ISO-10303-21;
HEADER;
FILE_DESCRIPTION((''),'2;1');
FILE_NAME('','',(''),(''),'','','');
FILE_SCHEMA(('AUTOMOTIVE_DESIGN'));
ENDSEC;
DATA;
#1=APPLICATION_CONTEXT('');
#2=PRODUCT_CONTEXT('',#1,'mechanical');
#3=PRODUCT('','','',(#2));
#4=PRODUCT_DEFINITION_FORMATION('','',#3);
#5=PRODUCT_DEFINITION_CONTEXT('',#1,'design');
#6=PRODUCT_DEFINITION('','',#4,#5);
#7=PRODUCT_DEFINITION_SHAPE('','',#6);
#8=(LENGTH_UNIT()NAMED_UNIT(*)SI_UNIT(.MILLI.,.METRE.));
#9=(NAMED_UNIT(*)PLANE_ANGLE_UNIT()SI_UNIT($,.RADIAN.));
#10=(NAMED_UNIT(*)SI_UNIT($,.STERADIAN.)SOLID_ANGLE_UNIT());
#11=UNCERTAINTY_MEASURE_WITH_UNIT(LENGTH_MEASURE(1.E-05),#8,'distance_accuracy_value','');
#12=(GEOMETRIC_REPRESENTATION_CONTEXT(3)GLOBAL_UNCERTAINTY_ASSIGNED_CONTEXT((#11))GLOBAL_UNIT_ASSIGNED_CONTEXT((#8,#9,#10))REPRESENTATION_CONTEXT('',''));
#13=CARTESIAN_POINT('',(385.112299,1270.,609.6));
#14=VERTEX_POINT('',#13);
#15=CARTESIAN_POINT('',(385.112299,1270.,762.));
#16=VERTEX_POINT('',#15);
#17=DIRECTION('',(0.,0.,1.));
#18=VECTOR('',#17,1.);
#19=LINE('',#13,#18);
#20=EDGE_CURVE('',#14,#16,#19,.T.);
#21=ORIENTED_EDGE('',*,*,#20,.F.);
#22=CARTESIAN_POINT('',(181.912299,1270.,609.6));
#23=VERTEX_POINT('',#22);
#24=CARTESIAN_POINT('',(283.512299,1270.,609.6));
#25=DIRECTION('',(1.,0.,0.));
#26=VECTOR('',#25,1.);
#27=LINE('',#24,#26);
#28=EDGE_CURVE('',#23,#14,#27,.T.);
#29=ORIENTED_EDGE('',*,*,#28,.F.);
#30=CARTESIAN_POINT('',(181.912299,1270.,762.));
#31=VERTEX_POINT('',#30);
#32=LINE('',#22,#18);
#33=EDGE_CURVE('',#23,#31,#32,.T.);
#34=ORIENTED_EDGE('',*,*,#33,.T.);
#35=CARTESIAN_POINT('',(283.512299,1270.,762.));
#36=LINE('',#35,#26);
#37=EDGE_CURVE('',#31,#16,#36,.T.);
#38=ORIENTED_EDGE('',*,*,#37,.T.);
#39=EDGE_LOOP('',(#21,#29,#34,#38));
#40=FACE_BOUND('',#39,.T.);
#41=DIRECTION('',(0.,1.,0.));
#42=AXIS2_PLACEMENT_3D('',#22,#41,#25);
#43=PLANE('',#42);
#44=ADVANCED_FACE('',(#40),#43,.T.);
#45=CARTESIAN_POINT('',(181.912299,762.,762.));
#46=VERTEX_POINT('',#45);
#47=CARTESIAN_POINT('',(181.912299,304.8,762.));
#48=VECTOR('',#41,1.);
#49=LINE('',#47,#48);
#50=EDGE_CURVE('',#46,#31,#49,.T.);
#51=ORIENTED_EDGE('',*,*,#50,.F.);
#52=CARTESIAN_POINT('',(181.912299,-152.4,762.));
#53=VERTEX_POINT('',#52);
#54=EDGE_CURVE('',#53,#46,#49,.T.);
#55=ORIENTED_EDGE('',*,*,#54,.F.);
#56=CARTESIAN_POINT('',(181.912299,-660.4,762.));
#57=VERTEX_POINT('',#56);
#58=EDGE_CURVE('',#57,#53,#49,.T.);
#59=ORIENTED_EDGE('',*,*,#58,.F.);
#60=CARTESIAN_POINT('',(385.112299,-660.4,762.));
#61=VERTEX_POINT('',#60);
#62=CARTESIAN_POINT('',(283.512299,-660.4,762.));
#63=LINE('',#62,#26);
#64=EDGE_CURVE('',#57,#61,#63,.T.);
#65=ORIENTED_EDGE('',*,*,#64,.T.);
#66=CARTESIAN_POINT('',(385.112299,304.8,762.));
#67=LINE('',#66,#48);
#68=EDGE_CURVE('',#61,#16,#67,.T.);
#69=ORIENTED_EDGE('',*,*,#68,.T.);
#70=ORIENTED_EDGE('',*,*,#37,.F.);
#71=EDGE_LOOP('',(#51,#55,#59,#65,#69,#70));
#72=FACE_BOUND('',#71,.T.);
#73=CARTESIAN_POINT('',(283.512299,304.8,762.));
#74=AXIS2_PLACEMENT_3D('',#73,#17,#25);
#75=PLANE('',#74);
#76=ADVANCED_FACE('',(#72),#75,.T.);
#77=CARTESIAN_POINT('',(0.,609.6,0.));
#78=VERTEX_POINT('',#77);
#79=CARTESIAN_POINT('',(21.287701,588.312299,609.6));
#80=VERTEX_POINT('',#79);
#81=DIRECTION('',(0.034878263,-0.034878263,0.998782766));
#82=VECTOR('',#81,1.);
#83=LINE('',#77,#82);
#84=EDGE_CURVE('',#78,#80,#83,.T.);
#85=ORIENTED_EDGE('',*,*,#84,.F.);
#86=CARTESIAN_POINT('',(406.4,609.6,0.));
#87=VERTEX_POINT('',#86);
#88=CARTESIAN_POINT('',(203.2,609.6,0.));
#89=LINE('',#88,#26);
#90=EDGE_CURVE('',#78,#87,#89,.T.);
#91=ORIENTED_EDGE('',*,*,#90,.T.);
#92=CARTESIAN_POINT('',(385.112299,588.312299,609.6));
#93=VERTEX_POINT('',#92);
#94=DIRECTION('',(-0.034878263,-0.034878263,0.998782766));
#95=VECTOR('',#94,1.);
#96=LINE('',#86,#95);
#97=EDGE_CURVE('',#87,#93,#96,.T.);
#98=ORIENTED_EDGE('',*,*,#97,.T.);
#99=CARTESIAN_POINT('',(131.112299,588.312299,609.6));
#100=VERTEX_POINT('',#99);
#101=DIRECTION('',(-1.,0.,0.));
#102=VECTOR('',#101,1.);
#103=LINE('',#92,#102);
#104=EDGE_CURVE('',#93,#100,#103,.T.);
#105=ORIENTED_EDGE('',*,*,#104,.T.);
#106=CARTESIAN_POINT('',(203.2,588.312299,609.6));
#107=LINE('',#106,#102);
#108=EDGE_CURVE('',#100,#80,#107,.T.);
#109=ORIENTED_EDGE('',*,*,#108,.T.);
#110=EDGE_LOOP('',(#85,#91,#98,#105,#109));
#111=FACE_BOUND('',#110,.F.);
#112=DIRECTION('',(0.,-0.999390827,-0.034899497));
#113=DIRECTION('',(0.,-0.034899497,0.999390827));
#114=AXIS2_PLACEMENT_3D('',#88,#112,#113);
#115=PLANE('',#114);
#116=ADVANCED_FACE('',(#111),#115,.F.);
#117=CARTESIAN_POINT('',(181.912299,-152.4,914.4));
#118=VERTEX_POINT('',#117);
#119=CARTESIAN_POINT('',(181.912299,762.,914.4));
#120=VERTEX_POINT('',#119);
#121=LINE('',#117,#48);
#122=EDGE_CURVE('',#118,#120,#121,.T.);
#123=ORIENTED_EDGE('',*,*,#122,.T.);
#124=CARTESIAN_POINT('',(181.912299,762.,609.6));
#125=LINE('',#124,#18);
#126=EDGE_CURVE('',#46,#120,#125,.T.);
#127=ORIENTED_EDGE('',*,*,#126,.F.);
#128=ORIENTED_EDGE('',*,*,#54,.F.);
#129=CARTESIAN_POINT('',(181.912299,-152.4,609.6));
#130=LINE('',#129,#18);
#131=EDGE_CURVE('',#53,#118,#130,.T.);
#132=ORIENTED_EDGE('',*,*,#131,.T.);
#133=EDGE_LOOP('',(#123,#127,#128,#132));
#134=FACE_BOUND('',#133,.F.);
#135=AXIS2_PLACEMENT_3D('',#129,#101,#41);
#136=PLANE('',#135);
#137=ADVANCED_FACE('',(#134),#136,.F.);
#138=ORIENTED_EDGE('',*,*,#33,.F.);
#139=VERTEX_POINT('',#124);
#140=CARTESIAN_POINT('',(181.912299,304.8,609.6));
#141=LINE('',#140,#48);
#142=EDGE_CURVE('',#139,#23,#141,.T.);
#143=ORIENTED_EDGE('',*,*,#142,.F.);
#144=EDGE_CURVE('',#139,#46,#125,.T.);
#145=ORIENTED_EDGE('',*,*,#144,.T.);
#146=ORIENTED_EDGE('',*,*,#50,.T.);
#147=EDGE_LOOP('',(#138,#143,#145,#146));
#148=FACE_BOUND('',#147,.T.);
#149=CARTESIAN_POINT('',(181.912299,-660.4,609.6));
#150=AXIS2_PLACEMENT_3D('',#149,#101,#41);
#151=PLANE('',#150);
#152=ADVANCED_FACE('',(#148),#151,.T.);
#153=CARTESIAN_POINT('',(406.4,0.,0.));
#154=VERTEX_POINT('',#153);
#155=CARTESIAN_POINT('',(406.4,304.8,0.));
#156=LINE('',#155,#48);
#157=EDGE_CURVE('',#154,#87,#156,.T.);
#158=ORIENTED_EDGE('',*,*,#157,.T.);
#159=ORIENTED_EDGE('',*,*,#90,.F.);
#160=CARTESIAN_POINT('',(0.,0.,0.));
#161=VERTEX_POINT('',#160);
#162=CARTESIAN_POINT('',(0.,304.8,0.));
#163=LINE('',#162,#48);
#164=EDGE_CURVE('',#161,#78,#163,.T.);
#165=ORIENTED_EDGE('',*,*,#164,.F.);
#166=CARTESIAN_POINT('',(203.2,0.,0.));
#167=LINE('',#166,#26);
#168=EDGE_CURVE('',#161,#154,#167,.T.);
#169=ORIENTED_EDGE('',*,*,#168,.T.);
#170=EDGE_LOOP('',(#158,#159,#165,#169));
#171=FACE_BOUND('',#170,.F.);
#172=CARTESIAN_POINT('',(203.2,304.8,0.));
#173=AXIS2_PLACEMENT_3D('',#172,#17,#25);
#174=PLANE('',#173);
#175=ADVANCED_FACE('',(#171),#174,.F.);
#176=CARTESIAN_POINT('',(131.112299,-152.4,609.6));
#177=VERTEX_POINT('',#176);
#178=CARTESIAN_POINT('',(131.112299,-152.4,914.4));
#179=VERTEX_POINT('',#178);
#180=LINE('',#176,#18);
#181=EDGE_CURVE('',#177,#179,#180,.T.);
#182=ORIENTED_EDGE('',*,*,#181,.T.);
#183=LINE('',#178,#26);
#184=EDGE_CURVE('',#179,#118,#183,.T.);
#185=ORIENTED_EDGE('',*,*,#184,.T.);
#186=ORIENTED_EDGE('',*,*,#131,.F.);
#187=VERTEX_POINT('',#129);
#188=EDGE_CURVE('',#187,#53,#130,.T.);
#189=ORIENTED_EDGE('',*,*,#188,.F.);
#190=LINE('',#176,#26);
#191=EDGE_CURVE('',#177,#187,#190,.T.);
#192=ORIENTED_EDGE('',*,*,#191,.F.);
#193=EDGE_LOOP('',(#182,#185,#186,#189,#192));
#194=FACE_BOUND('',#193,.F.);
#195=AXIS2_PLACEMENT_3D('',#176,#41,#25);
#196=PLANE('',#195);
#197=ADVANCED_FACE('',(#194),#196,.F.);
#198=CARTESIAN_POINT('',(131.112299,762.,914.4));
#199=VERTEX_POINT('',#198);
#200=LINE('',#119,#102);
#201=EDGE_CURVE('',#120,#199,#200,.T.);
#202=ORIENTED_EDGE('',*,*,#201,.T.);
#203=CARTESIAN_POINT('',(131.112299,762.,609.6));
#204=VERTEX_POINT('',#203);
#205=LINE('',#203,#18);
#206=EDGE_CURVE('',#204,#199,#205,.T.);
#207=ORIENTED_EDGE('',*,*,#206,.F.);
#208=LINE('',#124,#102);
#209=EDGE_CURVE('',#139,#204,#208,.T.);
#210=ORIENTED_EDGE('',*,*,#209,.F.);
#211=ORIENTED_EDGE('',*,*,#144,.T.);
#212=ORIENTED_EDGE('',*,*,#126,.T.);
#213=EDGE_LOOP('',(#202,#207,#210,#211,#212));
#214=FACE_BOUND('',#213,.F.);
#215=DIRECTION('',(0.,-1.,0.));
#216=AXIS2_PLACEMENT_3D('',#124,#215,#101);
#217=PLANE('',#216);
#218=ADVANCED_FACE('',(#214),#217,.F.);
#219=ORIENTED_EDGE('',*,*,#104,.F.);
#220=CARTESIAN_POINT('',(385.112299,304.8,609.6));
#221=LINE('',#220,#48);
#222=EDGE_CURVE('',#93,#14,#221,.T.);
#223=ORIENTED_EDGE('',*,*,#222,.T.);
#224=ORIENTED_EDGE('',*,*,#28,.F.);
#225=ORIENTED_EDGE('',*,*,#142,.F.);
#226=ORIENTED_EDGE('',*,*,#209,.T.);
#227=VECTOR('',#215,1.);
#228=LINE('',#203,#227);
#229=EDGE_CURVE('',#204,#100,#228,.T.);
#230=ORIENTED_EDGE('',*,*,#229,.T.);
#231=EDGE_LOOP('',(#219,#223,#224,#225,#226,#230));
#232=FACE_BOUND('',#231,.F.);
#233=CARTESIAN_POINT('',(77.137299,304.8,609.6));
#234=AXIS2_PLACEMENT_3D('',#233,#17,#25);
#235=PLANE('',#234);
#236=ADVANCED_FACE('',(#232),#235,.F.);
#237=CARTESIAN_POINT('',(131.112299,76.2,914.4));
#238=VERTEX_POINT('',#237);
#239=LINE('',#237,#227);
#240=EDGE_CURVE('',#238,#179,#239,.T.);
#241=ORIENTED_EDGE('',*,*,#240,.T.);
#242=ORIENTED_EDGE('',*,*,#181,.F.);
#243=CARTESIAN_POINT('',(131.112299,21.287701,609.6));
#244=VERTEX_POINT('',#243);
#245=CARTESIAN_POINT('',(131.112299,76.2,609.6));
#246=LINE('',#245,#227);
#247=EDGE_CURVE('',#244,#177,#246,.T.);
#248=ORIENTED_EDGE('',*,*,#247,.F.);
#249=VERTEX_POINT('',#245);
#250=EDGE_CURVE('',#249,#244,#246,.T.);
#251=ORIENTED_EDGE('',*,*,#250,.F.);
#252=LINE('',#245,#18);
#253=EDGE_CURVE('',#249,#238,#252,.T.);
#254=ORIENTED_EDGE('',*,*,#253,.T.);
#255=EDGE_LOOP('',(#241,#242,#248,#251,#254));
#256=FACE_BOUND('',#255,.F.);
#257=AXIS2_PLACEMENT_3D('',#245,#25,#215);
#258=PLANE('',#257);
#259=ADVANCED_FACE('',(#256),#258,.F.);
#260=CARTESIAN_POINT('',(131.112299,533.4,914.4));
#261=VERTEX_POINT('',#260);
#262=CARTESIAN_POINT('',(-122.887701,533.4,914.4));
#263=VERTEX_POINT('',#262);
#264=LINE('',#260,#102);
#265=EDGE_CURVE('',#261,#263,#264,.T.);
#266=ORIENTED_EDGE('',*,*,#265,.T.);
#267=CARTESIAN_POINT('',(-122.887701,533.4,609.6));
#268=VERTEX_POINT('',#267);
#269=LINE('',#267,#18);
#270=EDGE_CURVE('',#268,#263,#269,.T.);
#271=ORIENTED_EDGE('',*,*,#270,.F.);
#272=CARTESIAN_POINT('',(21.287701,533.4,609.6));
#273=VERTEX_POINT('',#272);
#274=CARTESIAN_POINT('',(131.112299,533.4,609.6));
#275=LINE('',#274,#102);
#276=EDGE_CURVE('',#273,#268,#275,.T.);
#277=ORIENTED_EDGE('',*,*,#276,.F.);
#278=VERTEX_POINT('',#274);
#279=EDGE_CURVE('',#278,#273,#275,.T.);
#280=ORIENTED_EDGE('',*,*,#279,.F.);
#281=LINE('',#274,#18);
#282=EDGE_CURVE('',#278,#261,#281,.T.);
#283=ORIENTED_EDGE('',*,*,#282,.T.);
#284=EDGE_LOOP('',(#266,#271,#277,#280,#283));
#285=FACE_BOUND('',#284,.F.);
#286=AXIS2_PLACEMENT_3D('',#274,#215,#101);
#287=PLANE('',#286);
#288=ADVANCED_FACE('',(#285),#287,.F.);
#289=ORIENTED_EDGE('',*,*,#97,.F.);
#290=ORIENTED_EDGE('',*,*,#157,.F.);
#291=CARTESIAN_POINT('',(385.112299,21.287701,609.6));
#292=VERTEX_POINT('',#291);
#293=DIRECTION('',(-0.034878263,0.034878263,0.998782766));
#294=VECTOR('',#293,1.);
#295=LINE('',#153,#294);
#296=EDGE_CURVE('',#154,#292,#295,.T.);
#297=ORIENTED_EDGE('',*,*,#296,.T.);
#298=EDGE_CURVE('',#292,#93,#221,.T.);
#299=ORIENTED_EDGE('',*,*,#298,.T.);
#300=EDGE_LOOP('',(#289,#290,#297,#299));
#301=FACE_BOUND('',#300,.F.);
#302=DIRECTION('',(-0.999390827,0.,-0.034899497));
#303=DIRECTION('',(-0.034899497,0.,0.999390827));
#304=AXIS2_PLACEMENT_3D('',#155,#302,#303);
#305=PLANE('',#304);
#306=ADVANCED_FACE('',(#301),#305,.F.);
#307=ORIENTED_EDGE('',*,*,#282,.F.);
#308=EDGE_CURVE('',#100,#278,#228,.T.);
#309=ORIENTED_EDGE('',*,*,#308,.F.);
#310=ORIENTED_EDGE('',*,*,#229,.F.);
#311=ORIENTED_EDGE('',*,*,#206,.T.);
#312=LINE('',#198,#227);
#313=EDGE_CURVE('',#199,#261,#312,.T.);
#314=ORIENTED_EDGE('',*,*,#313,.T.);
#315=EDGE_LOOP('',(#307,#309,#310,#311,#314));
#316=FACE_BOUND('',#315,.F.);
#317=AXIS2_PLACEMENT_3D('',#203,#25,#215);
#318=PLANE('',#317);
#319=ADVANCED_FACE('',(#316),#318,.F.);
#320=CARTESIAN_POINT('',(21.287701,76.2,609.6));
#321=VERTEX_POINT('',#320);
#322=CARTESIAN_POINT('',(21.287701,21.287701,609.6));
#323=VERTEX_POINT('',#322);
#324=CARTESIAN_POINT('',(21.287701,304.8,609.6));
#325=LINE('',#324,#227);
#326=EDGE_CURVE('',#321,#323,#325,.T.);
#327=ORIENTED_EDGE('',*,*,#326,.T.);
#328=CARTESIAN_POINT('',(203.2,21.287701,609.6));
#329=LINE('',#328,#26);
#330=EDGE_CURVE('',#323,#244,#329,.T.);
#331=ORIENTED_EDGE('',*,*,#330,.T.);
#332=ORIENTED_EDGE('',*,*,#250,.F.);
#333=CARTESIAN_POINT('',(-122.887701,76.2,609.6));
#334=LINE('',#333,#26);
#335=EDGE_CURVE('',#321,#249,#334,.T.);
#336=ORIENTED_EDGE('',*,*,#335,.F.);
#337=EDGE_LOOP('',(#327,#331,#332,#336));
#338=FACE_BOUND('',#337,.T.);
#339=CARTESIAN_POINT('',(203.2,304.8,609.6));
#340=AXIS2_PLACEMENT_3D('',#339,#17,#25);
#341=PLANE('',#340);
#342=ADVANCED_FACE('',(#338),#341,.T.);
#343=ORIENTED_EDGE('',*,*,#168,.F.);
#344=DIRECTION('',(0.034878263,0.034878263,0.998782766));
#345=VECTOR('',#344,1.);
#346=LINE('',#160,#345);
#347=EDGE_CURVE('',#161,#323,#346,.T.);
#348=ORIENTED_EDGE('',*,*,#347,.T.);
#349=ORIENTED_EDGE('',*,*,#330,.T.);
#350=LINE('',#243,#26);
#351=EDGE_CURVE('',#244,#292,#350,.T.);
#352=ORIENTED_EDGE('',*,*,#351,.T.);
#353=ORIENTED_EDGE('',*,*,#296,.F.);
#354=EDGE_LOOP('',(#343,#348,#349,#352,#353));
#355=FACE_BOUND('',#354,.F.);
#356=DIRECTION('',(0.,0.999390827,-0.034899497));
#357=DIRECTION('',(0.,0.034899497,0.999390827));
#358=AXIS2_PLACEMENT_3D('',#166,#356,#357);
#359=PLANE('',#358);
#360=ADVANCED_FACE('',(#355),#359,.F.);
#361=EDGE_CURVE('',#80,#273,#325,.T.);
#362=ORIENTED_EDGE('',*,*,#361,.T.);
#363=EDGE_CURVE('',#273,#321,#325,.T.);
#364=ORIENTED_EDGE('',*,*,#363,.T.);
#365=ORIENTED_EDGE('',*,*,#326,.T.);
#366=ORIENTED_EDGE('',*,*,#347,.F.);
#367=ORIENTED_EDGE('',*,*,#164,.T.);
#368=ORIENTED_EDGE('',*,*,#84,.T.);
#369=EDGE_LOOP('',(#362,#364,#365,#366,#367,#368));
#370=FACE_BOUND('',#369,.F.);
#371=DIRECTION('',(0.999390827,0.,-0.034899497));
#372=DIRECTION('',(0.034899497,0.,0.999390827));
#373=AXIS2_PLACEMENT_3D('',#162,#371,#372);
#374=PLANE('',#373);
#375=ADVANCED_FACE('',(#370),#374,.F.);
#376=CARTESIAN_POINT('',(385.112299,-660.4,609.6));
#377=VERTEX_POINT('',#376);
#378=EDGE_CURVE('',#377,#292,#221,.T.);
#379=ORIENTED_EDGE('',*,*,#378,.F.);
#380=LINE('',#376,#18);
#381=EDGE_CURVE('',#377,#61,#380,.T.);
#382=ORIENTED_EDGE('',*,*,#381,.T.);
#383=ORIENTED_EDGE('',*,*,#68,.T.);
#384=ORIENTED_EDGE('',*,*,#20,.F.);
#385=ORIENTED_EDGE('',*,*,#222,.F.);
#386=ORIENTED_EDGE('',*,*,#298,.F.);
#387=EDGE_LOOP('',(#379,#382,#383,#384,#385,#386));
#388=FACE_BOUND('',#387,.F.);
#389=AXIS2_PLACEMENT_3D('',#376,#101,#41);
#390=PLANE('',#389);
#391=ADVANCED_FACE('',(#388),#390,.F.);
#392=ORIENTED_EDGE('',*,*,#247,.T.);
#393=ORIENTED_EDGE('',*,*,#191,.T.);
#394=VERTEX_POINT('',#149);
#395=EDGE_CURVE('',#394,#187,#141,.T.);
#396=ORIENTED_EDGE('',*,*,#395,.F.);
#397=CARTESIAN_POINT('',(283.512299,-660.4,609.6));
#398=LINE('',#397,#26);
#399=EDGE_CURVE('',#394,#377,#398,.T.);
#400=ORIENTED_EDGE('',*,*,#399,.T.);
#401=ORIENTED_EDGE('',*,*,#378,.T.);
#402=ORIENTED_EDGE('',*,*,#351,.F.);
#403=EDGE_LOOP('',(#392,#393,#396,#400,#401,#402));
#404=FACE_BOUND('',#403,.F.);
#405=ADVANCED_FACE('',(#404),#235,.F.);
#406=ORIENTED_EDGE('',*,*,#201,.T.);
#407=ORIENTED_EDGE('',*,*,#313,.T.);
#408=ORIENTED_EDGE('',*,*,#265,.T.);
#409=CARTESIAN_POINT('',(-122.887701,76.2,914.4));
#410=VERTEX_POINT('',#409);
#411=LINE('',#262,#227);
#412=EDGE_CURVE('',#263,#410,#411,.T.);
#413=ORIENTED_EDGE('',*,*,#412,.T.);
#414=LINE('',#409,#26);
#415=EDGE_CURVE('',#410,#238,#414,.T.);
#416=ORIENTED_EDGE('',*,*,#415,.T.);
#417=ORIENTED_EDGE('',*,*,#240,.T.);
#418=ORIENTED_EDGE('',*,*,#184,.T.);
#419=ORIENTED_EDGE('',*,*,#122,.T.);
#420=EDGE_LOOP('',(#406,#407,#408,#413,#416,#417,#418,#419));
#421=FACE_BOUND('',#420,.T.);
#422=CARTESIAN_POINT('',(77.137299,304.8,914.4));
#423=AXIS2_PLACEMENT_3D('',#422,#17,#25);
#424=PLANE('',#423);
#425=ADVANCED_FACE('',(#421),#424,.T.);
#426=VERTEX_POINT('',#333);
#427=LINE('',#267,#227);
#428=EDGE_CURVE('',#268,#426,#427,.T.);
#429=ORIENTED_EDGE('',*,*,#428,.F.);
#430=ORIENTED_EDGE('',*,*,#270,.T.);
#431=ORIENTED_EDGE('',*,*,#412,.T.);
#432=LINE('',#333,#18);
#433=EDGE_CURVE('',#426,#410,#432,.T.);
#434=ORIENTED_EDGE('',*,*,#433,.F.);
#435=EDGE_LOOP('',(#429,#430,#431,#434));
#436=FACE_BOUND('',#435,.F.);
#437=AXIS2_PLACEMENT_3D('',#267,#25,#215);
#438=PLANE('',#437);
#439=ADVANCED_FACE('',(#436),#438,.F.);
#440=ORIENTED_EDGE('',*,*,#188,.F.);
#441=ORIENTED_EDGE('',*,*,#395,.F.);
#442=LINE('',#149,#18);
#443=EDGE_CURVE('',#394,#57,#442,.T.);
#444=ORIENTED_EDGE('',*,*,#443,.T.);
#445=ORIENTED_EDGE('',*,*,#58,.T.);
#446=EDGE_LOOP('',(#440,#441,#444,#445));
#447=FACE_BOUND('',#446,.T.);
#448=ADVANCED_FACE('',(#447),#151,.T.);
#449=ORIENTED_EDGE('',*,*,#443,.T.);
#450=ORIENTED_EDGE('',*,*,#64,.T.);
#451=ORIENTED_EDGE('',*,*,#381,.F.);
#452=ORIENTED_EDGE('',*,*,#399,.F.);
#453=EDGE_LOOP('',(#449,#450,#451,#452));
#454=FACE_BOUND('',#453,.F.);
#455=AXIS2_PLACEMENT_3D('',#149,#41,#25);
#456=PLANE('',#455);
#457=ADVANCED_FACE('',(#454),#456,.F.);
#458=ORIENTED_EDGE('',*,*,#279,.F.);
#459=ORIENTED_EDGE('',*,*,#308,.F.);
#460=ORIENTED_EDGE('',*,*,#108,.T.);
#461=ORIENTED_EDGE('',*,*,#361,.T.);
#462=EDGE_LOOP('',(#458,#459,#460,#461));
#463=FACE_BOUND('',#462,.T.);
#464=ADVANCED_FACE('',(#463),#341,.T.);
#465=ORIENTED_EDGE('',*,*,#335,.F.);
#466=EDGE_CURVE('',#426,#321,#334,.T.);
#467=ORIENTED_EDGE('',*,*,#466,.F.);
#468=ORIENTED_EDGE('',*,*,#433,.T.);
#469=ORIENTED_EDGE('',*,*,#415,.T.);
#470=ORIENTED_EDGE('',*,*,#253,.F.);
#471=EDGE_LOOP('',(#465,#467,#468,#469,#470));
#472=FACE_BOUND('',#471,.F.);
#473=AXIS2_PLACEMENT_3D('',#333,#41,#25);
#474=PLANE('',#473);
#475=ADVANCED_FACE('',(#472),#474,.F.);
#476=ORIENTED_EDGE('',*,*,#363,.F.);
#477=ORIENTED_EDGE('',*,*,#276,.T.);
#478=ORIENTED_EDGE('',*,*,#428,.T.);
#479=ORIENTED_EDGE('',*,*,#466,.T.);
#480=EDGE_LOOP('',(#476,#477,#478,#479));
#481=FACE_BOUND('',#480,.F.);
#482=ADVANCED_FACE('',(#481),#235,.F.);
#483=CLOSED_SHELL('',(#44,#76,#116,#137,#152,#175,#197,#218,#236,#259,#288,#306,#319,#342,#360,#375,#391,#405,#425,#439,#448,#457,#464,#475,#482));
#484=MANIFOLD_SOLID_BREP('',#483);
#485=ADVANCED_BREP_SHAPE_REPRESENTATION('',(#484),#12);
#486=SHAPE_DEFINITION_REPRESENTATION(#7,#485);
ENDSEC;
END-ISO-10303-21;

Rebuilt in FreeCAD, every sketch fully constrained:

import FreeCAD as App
import Part
import Sketcher

V = App.Vector
Q = App.Units.Quantity


def add_polygon(sketch, points):
    """Adds a closed chain of lines whose ends are joined by coincident constraints."""
    first, n = sketch.GeometryCount, len(points)
    for a, b in zip(points, points[1:] + points[:1]):
        sketch.addGeometry(Part.LineSegment(App.Vector(*a, 0), App.Vector(*b, 0)), False)
    for i in range(n):
        sketch.addConstraint(Sketcher.Constraint("Coincident", first + i, 2, first + (i + 1) % n, 1))

doc = App.newDocument("Part")
body = doc.addObject("PartDesign::Body", "Body")

sketch1 = body.newObject("Sketcher::SketchObject", "Sketch")
sketch1.AttachmentSupport = (doc.getObject("XY_Plane"), [""])
sketch1.MapMode = "FlatFace"
add_polygon(sketch1, [(0, 610), (0, 0), (406, 0), (406, 610)])
sketch1.addConstraint(Sketcher.Constraint("Vertical", 0))
sketch1.addConstraint(Sketcher.Constraint("Horizontal", 1))
sketch1.addConstraint(Sketcher.Constraint("Vertical", 2))
sketch1.addConstraint(Sketcher.Constraint("Horizontal", 3))
sketch1.addConstraint(Sketcher.Constraint("Coincident", 0, 2, -1, 1))
sketch1.addConstraint(Sketcher.Constraint("DistanceX", 1, 1, 1, 2, Q("16 in")))
sketch1.addConstraint(Sketcher.Constraint("DistanceY", 0, 2, 0, 1, Q("24 in")))
pad1 = body.newObject("PartDesign::Pad", "Pad")
pad1.Profile = sketch1
pad1.Length = Q("24 in")
pad1.TaperAngle = -2

sketch2 = body.newObject("Sketcher::SketchObject", "Sketch001")
sketch2.AttachmentSupport = (doc.getObject("XY_Plane"), [""])
sketch2.MapMode = "FlatFace"
sketch2.AttachmentOffset = App.Placement(V(0, 0, 24 * 25.4), App.Rotation())
add_polygon(sketch2, [(182, 1270), (182, -660), (385, -660), (385, 1270)])
sketch2.addConstraint(Sketcher.Constraint("Vertical", 0))
sketch2.addConstraint(Sketcher.Constraint("Horizontal", 1))
sketch2.addConstraint(Sketcher.Constraint("Vertical", 2))
sketch2.addConstraint(Sketcher.Constraint("Horizontal", 3))
sketch2.addConstraint(Sketcher.Constraint("DistanceX", 1, 1, 1, 2, Q("8 in")))
sketch2.addConstraint(Sketcher.Constraint("DistanceY", 0, 2, 0, 1, Q("76 in")))
sketch2.addConstraint(Sketcher.Constraint("DistanceY", 0, 2, -1, 1, Q("26 in")))
sketch2.addConstraint(Sketcher.Constraint("DistanceX", -1, 1, 0, 2, Q("181.912299 mm")))
pad2 = body.newObject("PartDesign::Pad", "Pad001")
pad2.Profile = sketch2
pad2.Length = Q("6 in")

sketch3 = body.newObject("Sketcher::SketchObject", "Sketch002")
sketch3.AttachmentSupport = (doc.getObject("XY_Plane"), [""])
sketch3.MapMode = "FlatFace"
sketch3.AttachmentOffset = App.Placement(V(0, 0, 24 * 25.4), App.Rotation())
add_polygon(sketch3, [(182, -152), (182, 762), (131, 762), (131, 533), (-123, 533), (-123, 76), (131, 76), (131, -152)])
sketch3.addConstraint(Sketcher.Constraint("Vertical", 0))
sketch3.addConstraint(Sketcher.Constraint("Horizontal", 1))
sketch3.addConstraint(Sketcher.Constraint("Vertical", 2))
sketch3.addConstraint(Sketcher.Constraint("Horizontal", 3))
sketch3.addConstraint(Sketcher.Constraint("Vertical", 4))
sketch3.addConstraint(Sketcher.Constraint("Horizontal", 5))
sketch3.addConstraint(Sketcher.Constraint("Vertical", 6))
sketch3.addConstraint(Sketcher.Constraint("Horizontal", 7))
sketch3.addConstraint(Sketcher.Constraint("Vertical", 2, 2, 5, 2))
sketch3.addConstraint(Sketcher.Constraint("Equal", 2, 6))
sketch3.addConstraint(Sketcher.Constraint("DistanceX", 1, 2, 1, 1, Q("2 in")))
sketch3.addConstraint(Sketcher.Constraint("DistanceX", 3, 2, 3, 1, Q("10 in")))
sketch3.addConstraint(Sketcher.Constraint("DistanceY", 0, 1, 0, 2, Q("36 in")))
sketch3.addConstraint(Sketcher.Constraint("DistanceY", 2, 2, 2, 1, Q("9 in")))
sketch3.addConstraint(Sketcher.Constraint("DistanceY", -1, 1, 0, 2, Q("30 in")))
sketch3.addConstraint(Sketcher.Constraint("DistanceX", -1, 1, 0, 2, Q("181.912299 mm")))
pad3 = body.newObject("PartDesign::Pad", "Pad002")
pad3.Profile = sketch3
pad3.Length = Q("12 in")

doc.recompute()
